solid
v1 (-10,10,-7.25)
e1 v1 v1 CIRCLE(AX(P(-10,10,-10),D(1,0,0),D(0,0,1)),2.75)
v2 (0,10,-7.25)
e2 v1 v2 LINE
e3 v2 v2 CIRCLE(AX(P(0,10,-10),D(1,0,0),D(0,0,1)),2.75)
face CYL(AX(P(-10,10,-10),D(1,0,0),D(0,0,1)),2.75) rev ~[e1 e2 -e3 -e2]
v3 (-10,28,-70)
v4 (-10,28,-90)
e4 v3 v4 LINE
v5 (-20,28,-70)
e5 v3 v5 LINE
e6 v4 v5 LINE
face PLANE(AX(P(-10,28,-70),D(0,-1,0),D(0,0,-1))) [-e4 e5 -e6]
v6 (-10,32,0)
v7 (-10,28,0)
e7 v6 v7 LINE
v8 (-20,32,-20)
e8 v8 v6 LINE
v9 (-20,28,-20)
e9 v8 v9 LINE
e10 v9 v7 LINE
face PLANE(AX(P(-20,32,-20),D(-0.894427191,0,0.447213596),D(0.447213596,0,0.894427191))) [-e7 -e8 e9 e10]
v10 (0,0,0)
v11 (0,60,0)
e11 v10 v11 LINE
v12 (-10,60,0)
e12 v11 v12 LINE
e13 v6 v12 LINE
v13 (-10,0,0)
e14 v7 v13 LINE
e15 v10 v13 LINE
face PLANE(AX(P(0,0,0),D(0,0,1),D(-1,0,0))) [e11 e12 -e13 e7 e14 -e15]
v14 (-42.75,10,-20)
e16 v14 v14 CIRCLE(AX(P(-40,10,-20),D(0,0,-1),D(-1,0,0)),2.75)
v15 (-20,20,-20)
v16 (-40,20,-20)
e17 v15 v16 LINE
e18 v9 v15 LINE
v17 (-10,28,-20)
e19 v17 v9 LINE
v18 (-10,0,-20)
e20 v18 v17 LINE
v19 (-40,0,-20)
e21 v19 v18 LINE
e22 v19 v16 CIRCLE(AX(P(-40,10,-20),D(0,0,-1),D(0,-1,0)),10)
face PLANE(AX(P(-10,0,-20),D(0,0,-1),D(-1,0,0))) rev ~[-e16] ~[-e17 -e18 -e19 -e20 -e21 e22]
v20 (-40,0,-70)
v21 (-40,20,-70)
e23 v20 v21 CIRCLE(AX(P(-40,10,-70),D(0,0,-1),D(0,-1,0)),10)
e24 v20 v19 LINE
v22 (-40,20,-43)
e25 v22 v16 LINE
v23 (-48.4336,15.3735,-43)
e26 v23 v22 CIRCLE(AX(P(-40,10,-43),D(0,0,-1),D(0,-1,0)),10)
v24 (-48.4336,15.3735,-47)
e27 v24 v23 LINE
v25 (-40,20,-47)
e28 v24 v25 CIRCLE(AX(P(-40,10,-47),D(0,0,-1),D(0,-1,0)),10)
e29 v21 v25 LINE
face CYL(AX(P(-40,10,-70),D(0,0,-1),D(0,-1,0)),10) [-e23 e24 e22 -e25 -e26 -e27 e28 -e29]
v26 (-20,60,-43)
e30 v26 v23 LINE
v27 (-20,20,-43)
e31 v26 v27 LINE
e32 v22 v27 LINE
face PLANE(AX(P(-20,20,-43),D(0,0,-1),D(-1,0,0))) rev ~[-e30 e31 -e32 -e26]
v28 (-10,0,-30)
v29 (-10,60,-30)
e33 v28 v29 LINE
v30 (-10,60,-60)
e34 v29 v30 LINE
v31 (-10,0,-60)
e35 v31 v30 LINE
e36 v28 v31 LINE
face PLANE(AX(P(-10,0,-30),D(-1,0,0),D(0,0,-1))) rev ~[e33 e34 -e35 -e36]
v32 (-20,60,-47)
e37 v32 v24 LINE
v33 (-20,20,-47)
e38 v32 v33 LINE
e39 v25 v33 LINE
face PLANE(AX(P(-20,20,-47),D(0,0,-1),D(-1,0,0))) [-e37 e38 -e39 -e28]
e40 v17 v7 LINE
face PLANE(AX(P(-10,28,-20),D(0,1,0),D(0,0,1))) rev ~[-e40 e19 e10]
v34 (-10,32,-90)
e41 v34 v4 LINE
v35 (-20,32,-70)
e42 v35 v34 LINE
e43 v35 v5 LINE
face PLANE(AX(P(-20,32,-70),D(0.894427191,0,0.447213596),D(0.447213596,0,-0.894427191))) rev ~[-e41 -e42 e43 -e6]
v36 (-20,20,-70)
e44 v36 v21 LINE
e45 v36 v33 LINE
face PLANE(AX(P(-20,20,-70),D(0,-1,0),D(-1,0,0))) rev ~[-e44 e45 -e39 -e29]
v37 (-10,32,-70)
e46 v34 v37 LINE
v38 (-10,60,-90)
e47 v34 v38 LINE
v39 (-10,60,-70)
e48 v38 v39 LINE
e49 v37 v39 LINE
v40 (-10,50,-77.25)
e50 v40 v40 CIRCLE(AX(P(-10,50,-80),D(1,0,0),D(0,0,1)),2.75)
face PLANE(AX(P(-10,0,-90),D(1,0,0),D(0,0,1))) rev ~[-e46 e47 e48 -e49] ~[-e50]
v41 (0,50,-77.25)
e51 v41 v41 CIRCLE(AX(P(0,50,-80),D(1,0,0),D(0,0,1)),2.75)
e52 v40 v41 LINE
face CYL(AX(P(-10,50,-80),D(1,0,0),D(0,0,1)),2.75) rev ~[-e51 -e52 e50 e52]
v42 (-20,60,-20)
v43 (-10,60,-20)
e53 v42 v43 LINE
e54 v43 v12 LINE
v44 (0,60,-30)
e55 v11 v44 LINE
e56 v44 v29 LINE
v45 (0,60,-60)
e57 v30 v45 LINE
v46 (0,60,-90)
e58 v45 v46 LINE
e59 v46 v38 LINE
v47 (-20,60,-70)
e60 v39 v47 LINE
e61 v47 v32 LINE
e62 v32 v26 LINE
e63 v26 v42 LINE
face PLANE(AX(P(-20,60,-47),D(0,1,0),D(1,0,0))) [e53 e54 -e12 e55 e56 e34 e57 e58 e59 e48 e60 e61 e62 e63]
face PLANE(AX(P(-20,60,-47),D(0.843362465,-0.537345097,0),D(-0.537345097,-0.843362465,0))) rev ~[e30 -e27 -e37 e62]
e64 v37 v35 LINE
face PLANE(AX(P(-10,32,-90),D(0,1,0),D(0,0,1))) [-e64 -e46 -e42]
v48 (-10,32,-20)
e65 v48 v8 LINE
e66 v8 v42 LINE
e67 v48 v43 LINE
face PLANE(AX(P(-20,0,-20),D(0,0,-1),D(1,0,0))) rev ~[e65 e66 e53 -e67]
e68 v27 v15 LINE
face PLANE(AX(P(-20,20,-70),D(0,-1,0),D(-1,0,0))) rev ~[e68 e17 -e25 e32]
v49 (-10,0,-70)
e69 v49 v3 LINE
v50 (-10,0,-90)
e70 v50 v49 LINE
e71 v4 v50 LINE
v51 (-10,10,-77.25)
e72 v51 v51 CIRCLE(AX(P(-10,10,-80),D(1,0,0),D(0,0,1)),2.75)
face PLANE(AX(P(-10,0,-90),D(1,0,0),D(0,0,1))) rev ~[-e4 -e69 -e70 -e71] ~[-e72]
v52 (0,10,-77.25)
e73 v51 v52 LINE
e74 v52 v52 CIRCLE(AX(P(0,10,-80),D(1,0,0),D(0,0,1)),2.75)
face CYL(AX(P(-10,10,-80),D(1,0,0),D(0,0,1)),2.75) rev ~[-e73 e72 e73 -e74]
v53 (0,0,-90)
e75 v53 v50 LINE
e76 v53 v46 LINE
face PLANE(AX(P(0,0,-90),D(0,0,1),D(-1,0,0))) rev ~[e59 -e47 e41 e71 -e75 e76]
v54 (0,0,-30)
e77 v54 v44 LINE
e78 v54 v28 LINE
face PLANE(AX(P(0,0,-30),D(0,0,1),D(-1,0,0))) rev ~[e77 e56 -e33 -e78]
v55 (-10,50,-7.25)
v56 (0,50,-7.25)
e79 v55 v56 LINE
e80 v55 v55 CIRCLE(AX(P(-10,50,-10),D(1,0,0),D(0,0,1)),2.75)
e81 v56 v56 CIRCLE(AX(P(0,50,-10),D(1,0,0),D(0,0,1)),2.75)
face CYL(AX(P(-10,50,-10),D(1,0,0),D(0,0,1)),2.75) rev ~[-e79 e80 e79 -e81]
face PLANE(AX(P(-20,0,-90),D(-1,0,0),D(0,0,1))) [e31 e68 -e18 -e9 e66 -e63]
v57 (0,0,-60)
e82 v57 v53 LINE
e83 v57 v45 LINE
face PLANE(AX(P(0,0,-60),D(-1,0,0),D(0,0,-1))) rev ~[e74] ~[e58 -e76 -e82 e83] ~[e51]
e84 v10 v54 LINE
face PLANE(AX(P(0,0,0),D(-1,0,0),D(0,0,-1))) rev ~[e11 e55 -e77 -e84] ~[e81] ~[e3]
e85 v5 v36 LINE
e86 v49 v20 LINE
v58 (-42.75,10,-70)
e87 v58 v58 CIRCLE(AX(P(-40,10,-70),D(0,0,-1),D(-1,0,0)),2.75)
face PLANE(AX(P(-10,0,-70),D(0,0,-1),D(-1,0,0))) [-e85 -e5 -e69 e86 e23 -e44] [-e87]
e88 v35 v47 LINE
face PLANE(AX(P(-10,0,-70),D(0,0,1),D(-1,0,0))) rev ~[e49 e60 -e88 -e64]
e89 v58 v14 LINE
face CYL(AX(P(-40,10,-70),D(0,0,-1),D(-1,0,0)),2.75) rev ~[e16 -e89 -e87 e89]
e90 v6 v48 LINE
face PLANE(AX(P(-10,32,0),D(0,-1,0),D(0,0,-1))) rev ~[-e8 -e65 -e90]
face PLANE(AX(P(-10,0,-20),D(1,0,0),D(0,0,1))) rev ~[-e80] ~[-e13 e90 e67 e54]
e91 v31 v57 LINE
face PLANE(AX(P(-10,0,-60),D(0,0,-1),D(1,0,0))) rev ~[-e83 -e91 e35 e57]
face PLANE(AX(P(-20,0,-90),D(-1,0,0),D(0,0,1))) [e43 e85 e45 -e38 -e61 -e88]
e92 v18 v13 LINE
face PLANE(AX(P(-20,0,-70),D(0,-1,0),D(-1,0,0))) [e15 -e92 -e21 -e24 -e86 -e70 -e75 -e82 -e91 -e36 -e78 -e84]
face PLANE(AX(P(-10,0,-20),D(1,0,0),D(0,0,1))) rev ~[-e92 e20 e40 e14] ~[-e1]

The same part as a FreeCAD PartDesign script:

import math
import FreeCAD as App
import Part
import Sketcher

V = App.Vector


def add_polygon(sketch, points):
    """Adds a closed chain of lines whose ends are joined by coincident constraints."""
    first, n = sketch.GeometryCount, len(points)
    for a, b in zip(points, points[1:] + points[:1]):
        sketch.addGeometry(Part.LineSegment(App.Vector(*a, 0), App.Vector(*b, 0)), False)
    for i in range(n):
        sketch.addConstraint(Sketcher.Constraint("Coincident", first + i, 2, first + (i + 1) % n, 1))

doc = App.newDocument("Part")
params = doc.addObject("Spreadsheet::Sheet", "Params")
for row, (alias, value) in enumerate([
    ("sketch1_width", "10 mm"),
    ("sketch1_height", "30 mm"),
    ("sketch1_height2", "20 mm"),
    ("pad1_length", "60 mm"),
    ("sketch2_width", "4 mm"),
    ("sketch2_height", "20 mm"),
    ("pad2_length", "10 mm"),
    ("sketch3_width", "10 mm"),
    ("sketch3_height", "20 mm"),
    ("pocket1_length", "10 mm"),
    ("sketch4_radius", "10 mm"),
    ("sketch4_diameter", "5.5 mm"),
    ("pad3_length", "50 mm"),
    ("pad4_length", "4 mm"),
    ("sketch6_diameter", "5.5 mm"),
    ("hole_diameter", "5.5 mm"),
], start=1):
    params.set(f"A{row}", alias)
    params.set(f"B{row}", "=" + value)
    params.setAlias(f"B{row}", alias)

body = doc.addObject("PartDesign::Body", "Body")

# Sketch on XZ plane
sketch1 = body.newObject("Sketcher::SketchObject", "Sketch")
sketch1.AttachmentSupport = (doc.getObject("XZ_Plane"), [""])
sketch1.MapMode = "FlatFace"
add_polygon(sketch1, [(-10, 0), (0, 0), (0, -30), (-10, -30), (-10, -60), (0, -60), (0, -90), (-10, -90), (-10, -70), (-20, -70), (-20, -20), (-10, -20)])  # lines 0-11
sketch1.addConstraint([
    Sketcher.Constraint("Horizontal", 0),
    Sketcher.Constraint("Vertical", 1),
    Sketcher.Constraint("Horizontal", 2),
    Sketcher.Constraint("Vertical", 3),
    Sketcher.Constraint("Horizontal", 4),
    Sketcher.Constraint("Vertical", 5),
    Sketcher.Constraint("Horizontal", 6),
    Sketcher.Constraint("Vertical", 7),
    Sketcher.Constraint("Horizontal", 8),
    Sketcher.Constraint("Vertical", 9),
    Sketcher.Constraint("Horizontal", 10),
    Sketcher.Constraint("Vertical", 11),
    Sketcher.Constraint("Coincident", 0, 2, -1, 1),
    Sketcher.Constraint("PointOnObject", 4, 2, -2),
    Sketcher.Constraint("Vertical", 3, 2, 6, 2),
    Sketcher.Constraint("Vertical", 7, 2, 10, 2),
    Sketcher.Constraint("Equal", 6, 8),
    Sketcher.Constraint("Equal", 1, 3),
    Sketcher.Constraint("Equal", 3, 5),
    Sketcher.Constraint("Equal", 7, 11),
    Sketcher.Constraint("DistanceX", 0, 1, 0, 2, 10.0),
    Sketcher.Constraint("DistanceY", 1, 2, 1, 1, 30.0),
    Sketcher.Constraint("DistanceY", 7, 1, 7, 2, 20.0),
])
sketch1.setExpression("Constraints[32]", "Params.sketch1_width")
sketch1.setExpression("Constraints[33]", "Params.sketch1_height")
sketch1.setExpression("Constraints[34]", "Params.sketch1_height2")
pad1 = body.newObject("PartDesign::Pad", "Pad")
pad1.Profile = sketch1
pad1.setExpression("Length", "Params.pad1_length")
pad1.Reversed = True

# Sketch on YZ plane
sketch2 = body.newObject("Sketcher::SketchObject", "Sketch001")
sketch2.AttachmentSupport = (doc.getObject("YZ_Plane"), [""])
sketch2.MapMode = "FlatFace"
sketch2.AttachmentOffset = App.Placement(V(0, 0, -10), App.Rotation())
add_polygon(sketch2, [(32, -90), (28, -90), (28, -70), (32, -70)])  # lines 0-3
add_polygon(sketch2, [(28, -20), (28, 0), (32, 0), (32, -20)])  # lines 4-7
sketch2.addConstraint([
    Sketcher.Constraint("Horizontal", 0),
    Sketcher.Constraint("Vertical", 1),
    Sketcher.Constraint("Horizontal", 2),
    Sketcher.Constraint("Vertical", 3),
    Sketcher.Constraint("Vertical", 4),
    Sketcher.Constraint("Horizontal", 5),
    Sketcher.Constraint("Vertical", 6),
    Sketcher.Constraint("Horizontal", 7),
    Sketcher.Constraint("PointOnObject", 4, 2, -1),
    Sketcher.Constraint("Vertical", 1, 2, 4, 2),
    Sketcher.Constraint("Vertical", 3, 2, 5, 2),
    Sketcher.Constraint("Equal", 3, 4),
    Sketcher.Constraint("DistanceX", 0, 2, 0, 1, 4.0),
    Sketcher.Constraint("DistanceY", 1, 1, 1, 2, 20.0),
    Sketcher.Constraint("DistanceX", -1, 1, 0, 2, 28.0),
    Sketcher.Constraint("DistanceY", 0, 2, -1, 1, 90.0),
])
sketch2.setExpression("Constraints[20]", "Params.sketch2_width")
sketch2.setExpression("Constraints[21]", "Params.sketch2_height")
pad2 = body.newObject("PartDesign::Pad", "Pad001")
pad2.Profile = sketch2
pad2.setExpression("Length", "Params.pad2_length")
pad2.Reversed = True

# Sketch on XZ plane
sketch3 = body.newObject("Sketcher::SketchObject", "Sketch002")
sketch3.AttachmentSupport = (doc.getObject("XZ_Plane"), [""])
sketch3.MapMode = "FlatFace"
sketch3.AttachmentOffset = App.Placement(V(0, 0, -32), App.Rotation())
add_polygon(sketch3, [(-10, 0), (-20, -20), (-20, 0)])  # lines 0-2
add_polygon(sketch3, [(-20, -90), (-20, -70), (-10, -90)])  # lines 3-5
sketch3.addConstraint([
    Sketcher.Constraint("Vertical", 1),
    Sketcher.Constraint("Horizontal", 2),
    Sketcher.Constraint("Vertical", 3),
    Sketcher.Constraint("Horizontal", 5),
    Sketcher.Constraint("PointOnObject", 1, 2, -1),
    Sketcher.Constraint("Vertical", 1, 2, 3, 2),
    Sketcher.Constraint("Vertical", 2, 2, 4, 2),
    Sketcher.Constraint("Equal", 1, 3),
    Sketcher.Constraint("DistanceX", 2, 1, 2, 2, 10.0),
    Sketcher.Constraint("DistanceY", 1, 1, 1, 2, 20.0),
    Sketcher.Constraint("DistanceX", 0, 2, -1, 1, 20.0),
    Sketcher.Constraint("DistanceY", 3, 2, -1, 1, 70.0),
])
sketch3.setExpression("Constraints[14]", "Params.sketch3_width")
sketch3.setExpression("Constraints[15]", "Params.sketch3_height")
pocket1 = body.newObject("PartDesign::Pocket", "Pocket")
pocket1.Profile = sketch3
pocket1.setExpression("Length", "Params.pocket1_length")
pocket1.Reversed = True

# Sketch on XY plane
sketch4 = body.newObject("Sketcher::SketchObject", "Sketch003")
sketch4.AttachmentSupport = (doc.getObject("XY_Plane"), [""])
sketch4.MapMode = "FlatFace"
sketch4.AttachmentOffset = App.Placement(V(0, 0, -70), App.Rotation())
sketch4.addGeometry([
    Part.LineSegment(V(-40, 20, 0), V(-20, 20, 0)),  # 0
    Part.LineSegment(V(-20, 20, 0), V(-20, 0, 0)),  # 1
    Part.LineSegment(V(-20, 0, 0), V(-40, 0, 0)),  # 2
    Part.ArcOfCircle(Part.Circle(V(-40, 10, 0), V(0, 0, 1), 10), math.radians(90), math.radians(270)),  # 3
    Part.Circle(V(-40, 10, 0), V(0, 0, 1), 2.8),  # 4
], False)
sketch4.addConstraint([
    Sketcher.Constraint("Coincident", 0, 2, 1, 1),
    Sketcher.Constraint("Coincident", 1, 2, 2, 1),
    Sketcher.Constraint("Tangent", 2, 2, 3, 2),
    Sketcher.Constraint("Tangent", 3, 1, 0, 1),
    Sketcher.Constraint("Horizontal", 0),
    Sketcher.Constraint("Vertical", 1),
    Sketcher.Constraint("Horizontal", 2),
    Sketcher.Constraint("Coincident", 4, 3, 3, 3),
    Sketcher.Constraint("PointOnObject", 1, 2, -1),
    Sketcher.Constraint("Equal", 2, 1),
    Sketcher.Constraint("Radius", 3, 10.0),
    Sketcher.Constraint("Diameter", 4, 5.5),
    Sketcher.Constraint("DistanceX", 0, 2, -1, 1, 20.0),
])
sketch4.setExpression("Constraints[10]", "Params.sketch4_radius")
sketch4.setExpression("Constraints[11]", "Params.sketch4_diameter")
pad3 = body.newObject("PartDesign::Pad", "Pad002")
pad3.Profile = sketch4
pad3.setExpression("Length", "Params.pad3_length")

# Sketch on XY plane
sketch5 = body.newObject("Sketcher::SketchObject", "Sketch004")
sketch5.AttachmentSupport = (doc.getObject("XY_Plane"), [""])
sketch5.MapMode = "FlatFace"
sketch5.AttachmentOffset = App.Placement(V(0, 0, -47), App.Rotation())
add_polygon(sketch5, [(-48.4, 15.4), (-20, 60), (-18.2, 60), (-18.2, 15.4)])  # lines 0-3
sketch5.addConstraint([
    Sketcher.Constraint("Horizontal", 1),
    Sketcher.Constraint("Vertical", 2),
    Sketcher.Constraint("Horizontal", 3),
    Sketcher.Constraint("DistanceX", 0, 2, -1, 1, 20.0),
    Sketcher.Constraint("DistanceY", -1, 1, 0, 2, 60.0),
    Sketcher.Constraint("DistanceX", 1, 1, 1, 2, 1.843),
    Sketcher.Constraint("Distance", 0, 52.915),
    Sketcher.Constraint("DistanceX", 3, 2, 3, 1, 30.2766),
])
pad4 = body.newObject("PartDesign::Pad", "Pad003")
pad4.Profile = sketch5
pad4.setExpression("Length", "Params.pad4_length")

# Sketch on YZ plane
sketch6 = body.newObject("Sketcher::SketchObject", "Sketch005")
sketch6.AttachmentSupport = (doc.getObject("YZ_Plane"), [""])
sketch6.MapMode = "FlatFace"
sketch6.AttachmentOffset = App.Placement(V(0, 0, -10), App.Rotation())
sketch6.addGeometry([
    Part.Circle(V(50, -80, 0), V(0, 0, 1), 2.8),
    Part.Circle(V(10, -80, 0), V(0, 0, 1), 2.8),
    Part.Circle(V(10, -10, 0), V(0, 0, 1), 2.8),
    Part.Circle(V(50, -10, 0), V(0, 0, 1), 2.8),
], False)
sketch6.addConstraint([
    Sketcher.Constraint("Equal", 0, 1),
    Sketcher.Constraint("Equal", 1, 2),
    Sketcher.Constraint("Equal", 2, 3),
    Sketcher.Constraint("Horizontal", 0, 3, 1, 3),
    Sketcher.Constraint("Horizontal", 2, 3, 3, 3),
    Sketcher.Constraint("Vertical", 1, 3, 2, 3),
    Sketcher.Constraint("Vertical", 0, 3, 3, 3),
    Sketcher.Constraint("Diameter", 0, 5.5),
    Sketcher.Constraint("DistanceX", -1, 1, 0, 3, 50.0),
    Sketcher.Constraint("DistanceY", 0, 3, -1, 1, 80.0),
    Sketcher.Constraint("DistanceX", -1, 1, 1, 3, 10.0),
    Sketcher.Constraint("DistanceY", 2, 3, -1, 1, 10.0),
])
sketch6.setExpression("Constraints[7]", "Params.sketch6_diameter")
doc.recompute()
hole = body.newObject("PartDesign::Hole", "Hole")
hole.Profile = sketch6
hole.ThreadType = "None"
hole.setExpression("Diameter", "Params.hole_diameter")
hole.DepthType = "ThroughAll"
hole.Reversed = True

doc.recompute()
